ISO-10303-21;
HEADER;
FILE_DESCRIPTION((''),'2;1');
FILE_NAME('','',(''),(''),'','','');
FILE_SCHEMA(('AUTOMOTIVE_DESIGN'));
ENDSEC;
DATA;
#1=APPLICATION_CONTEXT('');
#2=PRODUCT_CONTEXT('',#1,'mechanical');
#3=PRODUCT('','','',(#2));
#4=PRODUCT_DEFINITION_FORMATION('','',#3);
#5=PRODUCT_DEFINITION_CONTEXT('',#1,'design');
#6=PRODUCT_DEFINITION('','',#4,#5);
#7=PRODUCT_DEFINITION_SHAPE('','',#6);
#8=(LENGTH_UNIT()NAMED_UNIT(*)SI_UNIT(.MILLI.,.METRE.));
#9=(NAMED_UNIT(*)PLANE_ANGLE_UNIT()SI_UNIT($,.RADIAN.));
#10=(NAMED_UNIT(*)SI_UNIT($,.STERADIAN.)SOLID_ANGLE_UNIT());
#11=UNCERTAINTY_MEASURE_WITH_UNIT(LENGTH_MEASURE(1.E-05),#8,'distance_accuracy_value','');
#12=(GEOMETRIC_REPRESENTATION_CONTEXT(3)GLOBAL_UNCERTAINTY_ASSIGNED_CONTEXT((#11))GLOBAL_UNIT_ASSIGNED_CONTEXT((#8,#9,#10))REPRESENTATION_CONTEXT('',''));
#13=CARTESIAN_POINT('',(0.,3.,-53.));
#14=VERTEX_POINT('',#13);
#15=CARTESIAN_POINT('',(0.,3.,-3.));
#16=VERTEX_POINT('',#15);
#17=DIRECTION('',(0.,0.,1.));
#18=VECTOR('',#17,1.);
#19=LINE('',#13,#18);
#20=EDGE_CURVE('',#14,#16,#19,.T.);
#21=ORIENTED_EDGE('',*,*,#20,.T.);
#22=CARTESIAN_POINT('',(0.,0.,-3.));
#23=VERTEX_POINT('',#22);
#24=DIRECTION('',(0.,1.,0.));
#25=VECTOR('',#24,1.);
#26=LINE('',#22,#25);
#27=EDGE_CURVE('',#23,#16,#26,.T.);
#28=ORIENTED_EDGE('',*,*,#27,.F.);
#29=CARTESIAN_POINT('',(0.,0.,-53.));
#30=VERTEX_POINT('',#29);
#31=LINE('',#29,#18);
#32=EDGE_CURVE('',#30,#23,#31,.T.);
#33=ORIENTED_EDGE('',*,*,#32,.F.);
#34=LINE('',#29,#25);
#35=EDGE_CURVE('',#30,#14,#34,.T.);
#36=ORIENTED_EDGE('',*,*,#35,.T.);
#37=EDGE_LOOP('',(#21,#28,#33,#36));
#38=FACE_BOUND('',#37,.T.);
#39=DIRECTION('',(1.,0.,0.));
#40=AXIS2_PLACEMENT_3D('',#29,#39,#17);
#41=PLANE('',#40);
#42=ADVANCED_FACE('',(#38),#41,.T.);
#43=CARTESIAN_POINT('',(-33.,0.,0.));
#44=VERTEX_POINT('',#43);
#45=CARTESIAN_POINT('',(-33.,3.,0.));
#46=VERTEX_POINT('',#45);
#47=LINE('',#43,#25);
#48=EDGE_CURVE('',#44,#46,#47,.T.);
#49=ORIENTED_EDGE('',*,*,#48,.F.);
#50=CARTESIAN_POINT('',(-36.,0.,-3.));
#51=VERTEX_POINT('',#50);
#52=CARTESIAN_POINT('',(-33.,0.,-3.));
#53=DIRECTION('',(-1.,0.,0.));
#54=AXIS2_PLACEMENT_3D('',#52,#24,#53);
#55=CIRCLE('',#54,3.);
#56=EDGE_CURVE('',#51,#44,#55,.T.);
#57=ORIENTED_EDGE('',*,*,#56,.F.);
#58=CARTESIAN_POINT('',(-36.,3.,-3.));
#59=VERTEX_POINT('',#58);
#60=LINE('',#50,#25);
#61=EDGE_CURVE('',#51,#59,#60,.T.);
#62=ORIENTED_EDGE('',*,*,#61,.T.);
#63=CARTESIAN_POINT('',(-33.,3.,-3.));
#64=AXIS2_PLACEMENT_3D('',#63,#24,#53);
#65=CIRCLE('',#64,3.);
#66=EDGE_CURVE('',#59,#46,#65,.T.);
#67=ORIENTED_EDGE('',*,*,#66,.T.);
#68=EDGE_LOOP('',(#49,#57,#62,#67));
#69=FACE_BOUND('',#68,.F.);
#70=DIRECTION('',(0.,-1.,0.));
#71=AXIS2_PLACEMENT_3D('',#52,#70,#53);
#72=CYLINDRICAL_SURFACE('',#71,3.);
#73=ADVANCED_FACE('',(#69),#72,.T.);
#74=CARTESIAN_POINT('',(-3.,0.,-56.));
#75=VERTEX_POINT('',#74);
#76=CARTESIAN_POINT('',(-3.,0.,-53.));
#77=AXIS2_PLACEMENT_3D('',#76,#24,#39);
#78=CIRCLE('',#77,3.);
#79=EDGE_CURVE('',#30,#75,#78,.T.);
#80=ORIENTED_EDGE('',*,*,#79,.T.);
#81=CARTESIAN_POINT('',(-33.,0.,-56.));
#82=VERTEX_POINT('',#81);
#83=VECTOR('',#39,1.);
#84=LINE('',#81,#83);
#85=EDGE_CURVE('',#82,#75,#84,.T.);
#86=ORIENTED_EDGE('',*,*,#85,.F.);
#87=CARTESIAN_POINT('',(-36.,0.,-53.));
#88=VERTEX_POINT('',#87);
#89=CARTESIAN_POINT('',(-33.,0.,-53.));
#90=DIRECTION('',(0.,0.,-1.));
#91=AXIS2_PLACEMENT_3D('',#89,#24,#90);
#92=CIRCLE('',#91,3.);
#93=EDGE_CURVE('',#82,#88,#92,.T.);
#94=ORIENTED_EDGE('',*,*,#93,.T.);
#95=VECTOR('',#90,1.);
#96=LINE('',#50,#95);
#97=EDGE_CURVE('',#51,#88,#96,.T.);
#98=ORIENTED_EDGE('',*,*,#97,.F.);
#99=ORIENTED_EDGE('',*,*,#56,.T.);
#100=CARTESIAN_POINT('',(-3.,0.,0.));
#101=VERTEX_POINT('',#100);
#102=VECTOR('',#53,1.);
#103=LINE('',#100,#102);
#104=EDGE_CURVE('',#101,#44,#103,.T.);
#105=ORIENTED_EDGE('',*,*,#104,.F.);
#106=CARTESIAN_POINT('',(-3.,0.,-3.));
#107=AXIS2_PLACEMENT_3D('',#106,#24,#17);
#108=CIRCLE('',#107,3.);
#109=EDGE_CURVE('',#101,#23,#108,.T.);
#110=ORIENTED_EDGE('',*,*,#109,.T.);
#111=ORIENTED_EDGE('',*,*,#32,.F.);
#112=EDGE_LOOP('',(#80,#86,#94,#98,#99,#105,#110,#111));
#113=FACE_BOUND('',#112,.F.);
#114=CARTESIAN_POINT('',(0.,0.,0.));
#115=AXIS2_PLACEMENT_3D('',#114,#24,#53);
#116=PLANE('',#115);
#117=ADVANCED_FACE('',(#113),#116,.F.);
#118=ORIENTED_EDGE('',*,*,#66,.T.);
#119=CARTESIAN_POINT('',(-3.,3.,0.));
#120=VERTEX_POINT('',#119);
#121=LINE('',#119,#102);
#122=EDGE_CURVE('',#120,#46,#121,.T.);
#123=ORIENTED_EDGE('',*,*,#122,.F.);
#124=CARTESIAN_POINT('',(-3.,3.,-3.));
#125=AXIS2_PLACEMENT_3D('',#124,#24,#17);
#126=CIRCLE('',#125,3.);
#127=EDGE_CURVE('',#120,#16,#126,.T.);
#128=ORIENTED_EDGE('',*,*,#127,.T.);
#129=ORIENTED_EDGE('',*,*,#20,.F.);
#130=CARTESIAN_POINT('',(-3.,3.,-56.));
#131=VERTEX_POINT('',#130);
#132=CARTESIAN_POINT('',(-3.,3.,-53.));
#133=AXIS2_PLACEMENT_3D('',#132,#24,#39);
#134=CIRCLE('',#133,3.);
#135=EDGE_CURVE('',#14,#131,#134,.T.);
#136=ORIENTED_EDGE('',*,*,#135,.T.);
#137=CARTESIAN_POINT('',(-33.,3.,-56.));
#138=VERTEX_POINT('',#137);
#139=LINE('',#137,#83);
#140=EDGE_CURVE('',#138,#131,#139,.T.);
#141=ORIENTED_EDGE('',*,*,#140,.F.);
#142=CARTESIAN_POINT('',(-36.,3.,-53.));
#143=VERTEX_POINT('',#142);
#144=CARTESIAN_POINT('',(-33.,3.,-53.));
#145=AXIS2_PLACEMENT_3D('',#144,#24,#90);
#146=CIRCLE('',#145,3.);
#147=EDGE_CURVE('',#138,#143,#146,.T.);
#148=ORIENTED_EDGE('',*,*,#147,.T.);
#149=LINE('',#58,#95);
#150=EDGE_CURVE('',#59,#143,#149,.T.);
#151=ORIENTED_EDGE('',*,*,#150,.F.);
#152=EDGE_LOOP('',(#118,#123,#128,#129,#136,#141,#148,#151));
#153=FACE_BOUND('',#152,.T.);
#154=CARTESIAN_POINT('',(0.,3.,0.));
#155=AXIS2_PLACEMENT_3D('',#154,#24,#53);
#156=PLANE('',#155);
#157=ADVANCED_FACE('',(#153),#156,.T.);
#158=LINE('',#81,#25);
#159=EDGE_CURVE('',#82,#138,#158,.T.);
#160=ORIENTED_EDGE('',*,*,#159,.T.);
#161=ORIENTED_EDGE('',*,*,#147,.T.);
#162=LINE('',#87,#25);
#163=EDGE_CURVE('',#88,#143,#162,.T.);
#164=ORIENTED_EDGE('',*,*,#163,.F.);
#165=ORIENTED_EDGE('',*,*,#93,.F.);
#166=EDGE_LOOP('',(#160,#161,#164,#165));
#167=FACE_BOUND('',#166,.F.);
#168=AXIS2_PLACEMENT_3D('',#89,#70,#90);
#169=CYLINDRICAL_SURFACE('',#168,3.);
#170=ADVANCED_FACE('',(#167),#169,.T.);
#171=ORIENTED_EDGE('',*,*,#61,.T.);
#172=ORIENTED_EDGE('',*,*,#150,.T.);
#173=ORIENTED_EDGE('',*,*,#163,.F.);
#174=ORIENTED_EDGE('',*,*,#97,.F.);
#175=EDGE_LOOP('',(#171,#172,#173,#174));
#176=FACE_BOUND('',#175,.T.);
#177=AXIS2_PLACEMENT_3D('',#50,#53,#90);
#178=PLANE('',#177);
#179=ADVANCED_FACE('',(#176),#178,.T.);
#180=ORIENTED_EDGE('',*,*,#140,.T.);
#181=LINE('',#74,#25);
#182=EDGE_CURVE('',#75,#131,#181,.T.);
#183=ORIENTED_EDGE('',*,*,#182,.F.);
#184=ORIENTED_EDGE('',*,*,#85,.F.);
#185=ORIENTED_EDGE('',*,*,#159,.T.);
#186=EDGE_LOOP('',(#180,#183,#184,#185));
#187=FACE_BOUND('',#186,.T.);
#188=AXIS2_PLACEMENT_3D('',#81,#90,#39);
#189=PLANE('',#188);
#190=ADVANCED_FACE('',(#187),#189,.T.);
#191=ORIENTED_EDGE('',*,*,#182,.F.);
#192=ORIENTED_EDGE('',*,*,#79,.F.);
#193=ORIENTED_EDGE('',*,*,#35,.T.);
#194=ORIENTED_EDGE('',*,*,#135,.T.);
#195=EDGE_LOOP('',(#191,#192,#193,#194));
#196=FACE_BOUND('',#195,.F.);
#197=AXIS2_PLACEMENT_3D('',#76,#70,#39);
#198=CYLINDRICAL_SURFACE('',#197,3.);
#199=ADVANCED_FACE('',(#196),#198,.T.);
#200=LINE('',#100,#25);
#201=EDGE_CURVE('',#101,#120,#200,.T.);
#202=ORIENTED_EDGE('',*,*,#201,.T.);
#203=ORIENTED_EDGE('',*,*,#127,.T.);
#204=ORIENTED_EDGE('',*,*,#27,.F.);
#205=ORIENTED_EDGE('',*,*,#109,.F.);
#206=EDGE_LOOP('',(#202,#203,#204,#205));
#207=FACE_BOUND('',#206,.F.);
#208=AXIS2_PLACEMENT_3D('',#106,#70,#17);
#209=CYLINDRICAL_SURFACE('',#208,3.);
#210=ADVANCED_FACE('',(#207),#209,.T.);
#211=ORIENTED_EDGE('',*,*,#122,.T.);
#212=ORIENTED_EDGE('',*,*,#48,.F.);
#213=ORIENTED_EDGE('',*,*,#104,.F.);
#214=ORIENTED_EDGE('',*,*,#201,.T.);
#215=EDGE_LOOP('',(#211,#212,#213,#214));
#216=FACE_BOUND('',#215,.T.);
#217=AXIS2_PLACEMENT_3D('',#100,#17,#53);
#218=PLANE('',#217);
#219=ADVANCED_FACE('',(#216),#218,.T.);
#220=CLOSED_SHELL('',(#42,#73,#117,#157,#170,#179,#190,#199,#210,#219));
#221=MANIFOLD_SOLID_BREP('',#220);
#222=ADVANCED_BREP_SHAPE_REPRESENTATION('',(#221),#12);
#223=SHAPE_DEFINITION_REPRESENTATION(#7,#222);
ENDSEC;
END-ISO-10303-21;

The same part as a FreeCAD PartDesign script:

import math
import FreeCAD as App
import Part
import Sketcher

V = App.Vector

doc = App.newDocument("Part")
params = doc.addObject("Spreadsheet::Sheet", "Params")
for row, (alias, value) in enumerate([
    ("sketch1_radius", "3 mm"),
    ("pad1_length", "3 mm"),
], start=1):
    params.set(f"A{row}", alias)
    params.set(f"B{row}", "=" + value)
    params.setAlias(f"B{row}", alias)

body = doc.addObject("PartDesign::Body", "Body")

# Sketch on XZ plane
sketch1 = body.newObject("Sketcher::SketchObject", "Sketch")
sketch1.AttachmentSupport = (doc.getObject("XZ_Plane"), [""])
sketch1.MapMode = "FlatFace"
sketch1.addGeometry([
    Part.LineSegment(V(-33, 0, 0), V(-3, 0, 0)),  # 0
    Part.ArcOfCircle(Part.Circle(V(-3, -3, 0), V(0, 0, 1), 3), math.radians(0), math.radians(90)),  # 1
    Part.LineSegment(V(0, -3, 0), V(0, -53, 0)),  # 2
    Part.ArcOfCircle(Part.Circle(V(-3, -53, 0), V(0, 0, 1), 3), math.radians(-90), math.radians(0)),  # 3
    Part.LineSegment(V(-3, -56, 0), V(-33, -56, 0)),  # 4
    Part.ArcOfCircle(Part.Circle(V(-33, -53, 0), V(0, 0, 1), 3), math.radians(180), math.radians(270)),  # 5
    Part.LineSegment(V(-36, -53, 0), V(-36, -3, 0)),  # 6
    Part.ArcOfCircle(Part.Circle(V(-33, -3, 0), V(0, 0, 1), 3), math.radians(90), math.radians(180)),  # 7
], False)
sketch1.addConstraint([
    Sketcher.Constraint("Tangent", 0, 2, 1, 2),
    Sketcher.Constraint("Tangent", 1, 1, 2, 1),
    Sketcher.Constraint("Tangent", 2, 2, 3, 2),
    Sketcher.Constraint("Tangent", 3, 1, 4, 1),
    Sketcher.Constraint("Tangent", 4, 2, 5, 2),
    Sketcher.Constraint("Tangent", 5, 1, 6, 1),
    Sketcher.Constraint("Tangent", 6, 2, 7, 2),
    Sketcher.Constraint("Tangent", 7, 1, 0, 1),
    Sketcher.Constraint("Horizontal", 0),
    Sketcher.Constraint("Vertical", 2),
    Sketcher.Constraint("Horizontal", 4),
    Sketcher.Constraint("Vertical", 6),
    Sketcher.Constraint("Equal", 1, 3),
    Sketcher.Constraint("Equal", 3, 5),
    Sketcher.Constraint("Equal", 5, 7),
    Sketcher.Constraint("PointOnObject", 0, 2, -1),
    Sketcher.Constraint("PointOnObject", 1, 1, -2),
    Sketcher.Constraint("Radius", 1, 3.0),
    Sketcher.Constraint("DistanceY", 3, 1, -1, 1, 56.0),
    Sketcher.Constraint("DistanceX", 5, 1, -1, 1, 36.0),
])
sketch1.setExpression("Constraints[17]", "Params.sketch1_radius")
pad1 = body.newObject("PartDesign::Pad", "Pad")
pad1.Profile = sketch1
pad1.setExpression("Length", "Params.pad1_length")
pad1.Reversed = True

doc.recompute()
